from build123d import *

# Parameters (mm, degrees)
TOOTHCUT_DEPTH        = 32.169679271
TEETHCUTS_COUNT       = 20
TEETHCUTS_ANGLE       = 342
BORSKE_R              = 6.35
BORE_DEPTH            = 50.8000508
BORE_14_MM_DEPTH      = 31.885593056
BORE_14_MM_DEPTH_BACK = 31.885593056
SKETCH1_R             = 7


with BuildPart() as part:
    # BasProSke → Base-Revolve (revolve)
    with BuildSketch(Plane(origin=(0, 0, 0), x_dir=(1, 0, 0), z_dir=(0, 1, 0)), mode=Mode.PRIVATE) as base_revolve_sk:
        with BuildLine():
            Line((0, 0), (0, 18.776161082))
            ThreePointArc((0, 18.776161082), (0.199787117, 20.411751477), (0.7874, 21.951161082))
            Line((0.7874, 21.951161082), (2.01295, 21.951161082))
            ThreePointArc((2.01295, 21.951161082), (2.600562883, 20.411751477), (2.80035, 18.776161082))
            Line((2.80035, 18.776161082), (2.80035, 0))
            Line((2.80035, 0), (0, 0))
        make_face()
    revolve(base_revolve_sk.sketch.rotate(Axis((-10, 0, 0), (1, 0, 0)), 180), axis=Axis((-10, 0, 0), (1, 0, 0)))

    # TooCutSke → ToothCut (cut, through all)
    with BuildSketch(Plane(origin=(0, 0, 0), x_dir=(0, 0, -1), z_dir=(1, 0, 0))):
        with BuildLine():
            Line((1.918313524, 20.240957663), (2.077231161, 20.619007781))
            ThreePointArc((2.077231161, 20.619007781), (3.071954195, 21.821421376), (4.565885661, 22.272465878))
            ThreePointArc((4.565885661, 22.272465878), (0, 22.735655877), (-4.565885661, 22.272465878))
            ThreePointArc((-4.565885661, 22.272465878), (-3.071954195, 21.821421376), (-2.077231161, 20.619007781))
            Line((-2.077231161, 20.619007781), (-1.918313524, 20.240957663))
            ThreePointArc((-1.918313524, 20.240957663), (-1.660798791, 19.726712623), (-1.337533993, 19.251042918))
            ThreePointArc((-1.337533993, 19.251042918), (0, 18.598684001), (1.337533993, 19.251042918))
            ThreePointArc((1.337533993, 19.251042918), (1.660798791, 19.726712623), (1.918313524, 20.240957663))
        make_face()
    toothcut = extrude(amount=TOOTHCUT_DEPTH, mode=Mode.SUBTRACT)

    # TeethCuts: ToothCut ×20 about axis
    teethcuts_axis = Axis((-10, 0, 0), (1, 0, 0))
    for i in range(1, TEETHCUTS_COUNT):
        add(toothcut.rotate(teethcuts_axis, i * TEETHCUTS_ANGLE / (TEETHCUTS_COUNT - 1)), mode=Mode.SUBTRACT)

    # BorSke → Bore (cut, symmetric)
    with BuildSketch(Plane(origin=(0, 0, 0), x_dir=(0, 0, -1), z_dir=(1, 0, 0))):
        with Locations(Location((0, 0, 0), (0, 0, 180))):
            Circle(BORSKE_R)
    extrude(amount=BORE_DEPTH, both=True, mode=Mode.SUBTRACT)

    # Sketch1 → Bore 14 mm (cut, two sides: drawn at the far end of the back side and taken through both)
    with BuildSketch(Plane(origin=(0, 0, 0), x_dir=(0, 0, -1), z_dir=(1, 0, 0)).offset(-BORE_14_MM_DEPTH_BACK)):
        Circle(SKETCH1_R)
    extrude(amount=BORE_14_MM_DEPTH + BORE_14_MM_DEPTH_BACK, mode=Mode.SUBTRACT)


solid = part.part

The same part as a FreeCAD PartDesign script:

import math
import FreeCAD as App
import Part
import Sketcher
from FreeCAD import Vector
Q = App.Units.Quantity

doc = App.newDocument("Part")
body = doc.addObject("PartDesign::Body", "Body")

# Sketch on XZ plane
sketch1 = body.newObject("Sketcher::SketchObject", "Sketch")
sketch1.AttachmentSupport = (doc.getObject("XZ_Plane"), [""])
sketch1.MapMode = "FlatFace"
sketch1.addGeometry(Part.LineSegment(Vector(0, -18.776161, 0), Vector(0, 0, 0)), False)
sketch1.addGeometry(Part.LineSegment(Vector(0, 0, 0), Vector(2.80035, 0, 0)), False)
sketch1.addGeometry(Part.LineSegment(Vector(2.80035, 0, 0), Vector(2.80035, -18.776161, 0)), False)
sketch1.addGeometry(Part.ArcOfCircle(Part.Circle(Vector(-3.99456, -18.776161, 0), Vector(0, 0, 1), 6.79491), math.radians(-27.856684), math.radians(0)), False)
sketch1.addGeometry(Part.LineSegment(Vector(2.01295, -21.951161, 0), Vector(0.7874, -21.951161, 0)), False)
sketch1.addGeometry(Part.ArcOfCircle(Part.Circle(Vector(6.79491, -18.776161, 0), Vector(0, 0, 1), 6.79491), math.radians(180), math.radians(207.856684)), False)
sketch1.addConstraint(Sketcher.Constraint("Coincident", 0, 2, 1, 1))
sketch1.addConstraint(Sketcher.Constraint("Coincident", 1, 2, 2, 1))
sketch1.addConstraint(Sketcher.Constraint("Tangent", 2, 2, 3, 2))
sketch1.addConstraint(Sketcher.Constraint("Coincident", 3, 1, 4, 1))
sketch1.addConstraint(Sketcher.Constraint("Coincident", 4, 2, 5, 2))
sketch1.addConstraint(Sketcher.Constraint("Tangent", 5, 1, 0, 1))
sketch1.addConstraint(Sketcher.Constraint("Vertical", 0))
sketch1.addConstraint(Sketcher.Constraint("Horizontal", 1))
sketch1.addConstraint(Sketcher.Constraint("Vertical", 2))
sketch1.addConstraint(Sketcher.Constraint("Horizontal", 4))
sketch1.addConstraint(Sketcher.Constraint("Coincident", 0, 2, -1, 1))
sketch1.addConstraint(Sketcher.Constraint("Equal", 3, 5))
sketch1.addConstraint(Sketcher.Constraint("Horizontal", 3, 3, 5, 3))
sketch1.addConstraint(Sketcher.Constraint("Radius", 3, 6.79491))
sketch1.addConstraint(Sketcher.Constraint("DistanceY", 3, 1, 2, 2, 3.175))
sketch1.addConstraint(Sketcher.Constraint("DistanceX", 1, 1, 1, 2, 2.80035))
sketch1.addConstraint(Sketcher.Constraint("DistanceY", 0, 1, 0, 2, 18.776161))
revolution = body.newObject("PartDesign::Revolution", "Revolution")
revolution.Profile = sketch1
revolution.ReferenceAxis = (sketch1, ["H_Axis"])
revolution.Angle = 360

# Sketch on YZ plane
sketch2 = body.newObject("Sketcher::SketchObject", "Sketch001")
sketch2.AttachmentSupport = (doc.getObject("YZ_Plane"), [""])
sketch2.MapMode = "FlatFace"
sketch2.addGeometry(Part.LineSegment(Vector(20.240958, -1.918314, 0), Vector(20.619008, -2.077231, 0)), False)
sketch2.addGeometry(Part.ArcOfCircle(Part.Circle(Vector(19.572874, -4.565886, 0), Vector(0, 0, 1), 2.699592), math.radians(0), math.radians(67.2)), False)
sketch2.addGeometry(Part.ArcOfCircle(Part.Circle(Vector(0, 0, 0), Vector(0, 0, 1), 22.735656), math.radians(-11.585201), math.radians(11.585201)), False)
sketch2.addGeometry(Part.ArcOfCircle(Part.Circle(Vector(19.572874, 4.565886, 0), Vector(0, 0, 1), 2.699592), math.radians(-67.2), math.radians(0)), False)
sketch2.addGeometry(Part.LineSegment(Vector(20.619008, 2.077231, 0), Vector(20.240958, 1.918314, 0)), False)
sketch2.addGeometry(Part.ArcOfCircle(Part.Circle(Vector(21.92237, -2.081609, 0), Vector(0, 0, 1), 4.338955), math.radians(112.8), math.radians(128)), False)
sketch2.addGeometry(Part.ArcOfCircle(Part.Circle(Vector(20.296039, 0, 0), Vector(0, 0, 1), 1.697355), math.radians(128), math.radians(232)), False)
sketch2.addGeometry(Part.ArcOfCircle(Part.Circle(Vector(21.92237, 2.081609, 0), Vector(0, 0, 1), 4.338955), math.radians(-128), math.radians(-112.8)), False)
sketch2.addConstraint(Sketcher.Constraint("Tangent", 0, 2, 1, 2))
sketch2.addConstraint(Sketcher.Constraint("Coincident", 1, 1, 2, 1))
sketch2.addConstraint(Sketcher.Constraint("Coincident", 2, 2, 3, 2))
sketch2.addConstraint(Sketcher.Constraint("Tangent", 3, 1, 4, 1))
sketch2.addConstraint(Sketcher.Constraint("Tangent", 4, 2, 5, 1))
sketch2.addConstraint(Sketcher.Constraint("Tangent", 5, 2, 6, 1))
sketch2.addConstraint(Sketcher.Constraint("Tangent", 6, 2, 7, 1))
sketch2.addConstraint(Sketcher.Constraint("Tangent", 7, 2, 0, 1))
sketch2.addConstraint(Sketcher.Constraint("Coincident", 2, 3, -1, 1))
sketch2.addConstraint(Sketcher.Constraint("Equal", 1, 3))
sketch2.addConstraint(Sketcher.Constraint("Equal", 5, 7))
sketch2.addConstraint(Sketcher.Constraint("Symmetric", 1, 3, 3, 3, -1))
sketch2.addConstraint(Sketcher.Constraint("Symmetric", 5, 3, 7, 3, -1))
sketch2.addConstraint(Sketcher.Constraint("Horizontal", 3, 3, 2, 2))
sketch2.addConstraint(Sketcher.Constraint("Angle", 0, Q("-22.8 deg")))
sketch2.addConstraint(Sketcher.Constraint("Radius", 1, 2.699592))
sketch2.addConstraint(Sketcher.Constraint("Radius", 2, 22.735656))
sketch2.addConstraint(Sketcher.Constraint("Radius", 5, 4.338955))
sketch2.addConstraint(Sketcher.Constraint("Radius", 6, 1.697355))
sketch2.addConstraint(Sketcher.Constraint("DistanceX", -1, 1, 5, 3, 21.92237))
sketch2.addConstraint(Sketcher.Constraint("DistanceY", 5, 3, -1, 1, 2.081609))
pocket1 = body.newObject("PartDesign::Pocket", "Pocket")
pocket1.Profile = sketch2
pocket1.Type = "ThroughAll"
pocket1.Reversed = True
doc.recompute()

polarpattern = body.newObject("PartDesign::PolarPattern", "PolarPattern")
polarpattern.Originals = [pocket1]
polarpattern.Axis = (doc.getObject("X_Axis"), [""])
polarpattern.Angle = 360
polarpattern.Occurrences = 20
body.Tip = polarpattern

# Sketch on YZ plane
sketch3 = body.newObject("Sketcher::SketchObject", "Sketch002")
sketch3.AttachmentSupport = (doc.getObject("YZ_Plane"), [""])
sketch3.MapMode = "FlatFace"
sketch3.addGeometry(Part.Circle(Vector(0, 0, 0), Vector(0, 0, 1), 6.35), False)
sketch3.addConstraint(Sketcher.Constraint("Coincident", 0, 3, -1, 1))
sketch3.addConstraint(Sketcher.Constraint("Diameter", 0, 12.7))
pocket2 = body.newObject("PartDesign::Pocket", "Pocket001")
pocket2.Profile = sketch3
pocket2.Length = 101.600102
pocket2.Midplane = True

# Sketch on YZ plane
sketch4 = body.newObject("Sketcher::SketchObject", "Sketch003")
sketch4.AttachmentSupport = (doc.getObject("YZ_Plane"), [""])
sketch4.MapMode = "FlatFace"
sketch4.addGeometry(Part.Circle(Vector(0, 0, 0), Vector(0, 0, 1), 7), False)
sketch4.addConstraint(Sketcher.Constraint("Coincident", 0, 3, -1, 1))
sketch4.addConstraint(Sketcher.Constraint("Diameter", 0, 14.0))
pocket3 = body.newObject("PartDesign::Pocket", "Pocket002")
pocket3.Profile = sketch4
pocket3.Type = "ThroughAll"
pocket3.Midplane = True

doc.recompute()
